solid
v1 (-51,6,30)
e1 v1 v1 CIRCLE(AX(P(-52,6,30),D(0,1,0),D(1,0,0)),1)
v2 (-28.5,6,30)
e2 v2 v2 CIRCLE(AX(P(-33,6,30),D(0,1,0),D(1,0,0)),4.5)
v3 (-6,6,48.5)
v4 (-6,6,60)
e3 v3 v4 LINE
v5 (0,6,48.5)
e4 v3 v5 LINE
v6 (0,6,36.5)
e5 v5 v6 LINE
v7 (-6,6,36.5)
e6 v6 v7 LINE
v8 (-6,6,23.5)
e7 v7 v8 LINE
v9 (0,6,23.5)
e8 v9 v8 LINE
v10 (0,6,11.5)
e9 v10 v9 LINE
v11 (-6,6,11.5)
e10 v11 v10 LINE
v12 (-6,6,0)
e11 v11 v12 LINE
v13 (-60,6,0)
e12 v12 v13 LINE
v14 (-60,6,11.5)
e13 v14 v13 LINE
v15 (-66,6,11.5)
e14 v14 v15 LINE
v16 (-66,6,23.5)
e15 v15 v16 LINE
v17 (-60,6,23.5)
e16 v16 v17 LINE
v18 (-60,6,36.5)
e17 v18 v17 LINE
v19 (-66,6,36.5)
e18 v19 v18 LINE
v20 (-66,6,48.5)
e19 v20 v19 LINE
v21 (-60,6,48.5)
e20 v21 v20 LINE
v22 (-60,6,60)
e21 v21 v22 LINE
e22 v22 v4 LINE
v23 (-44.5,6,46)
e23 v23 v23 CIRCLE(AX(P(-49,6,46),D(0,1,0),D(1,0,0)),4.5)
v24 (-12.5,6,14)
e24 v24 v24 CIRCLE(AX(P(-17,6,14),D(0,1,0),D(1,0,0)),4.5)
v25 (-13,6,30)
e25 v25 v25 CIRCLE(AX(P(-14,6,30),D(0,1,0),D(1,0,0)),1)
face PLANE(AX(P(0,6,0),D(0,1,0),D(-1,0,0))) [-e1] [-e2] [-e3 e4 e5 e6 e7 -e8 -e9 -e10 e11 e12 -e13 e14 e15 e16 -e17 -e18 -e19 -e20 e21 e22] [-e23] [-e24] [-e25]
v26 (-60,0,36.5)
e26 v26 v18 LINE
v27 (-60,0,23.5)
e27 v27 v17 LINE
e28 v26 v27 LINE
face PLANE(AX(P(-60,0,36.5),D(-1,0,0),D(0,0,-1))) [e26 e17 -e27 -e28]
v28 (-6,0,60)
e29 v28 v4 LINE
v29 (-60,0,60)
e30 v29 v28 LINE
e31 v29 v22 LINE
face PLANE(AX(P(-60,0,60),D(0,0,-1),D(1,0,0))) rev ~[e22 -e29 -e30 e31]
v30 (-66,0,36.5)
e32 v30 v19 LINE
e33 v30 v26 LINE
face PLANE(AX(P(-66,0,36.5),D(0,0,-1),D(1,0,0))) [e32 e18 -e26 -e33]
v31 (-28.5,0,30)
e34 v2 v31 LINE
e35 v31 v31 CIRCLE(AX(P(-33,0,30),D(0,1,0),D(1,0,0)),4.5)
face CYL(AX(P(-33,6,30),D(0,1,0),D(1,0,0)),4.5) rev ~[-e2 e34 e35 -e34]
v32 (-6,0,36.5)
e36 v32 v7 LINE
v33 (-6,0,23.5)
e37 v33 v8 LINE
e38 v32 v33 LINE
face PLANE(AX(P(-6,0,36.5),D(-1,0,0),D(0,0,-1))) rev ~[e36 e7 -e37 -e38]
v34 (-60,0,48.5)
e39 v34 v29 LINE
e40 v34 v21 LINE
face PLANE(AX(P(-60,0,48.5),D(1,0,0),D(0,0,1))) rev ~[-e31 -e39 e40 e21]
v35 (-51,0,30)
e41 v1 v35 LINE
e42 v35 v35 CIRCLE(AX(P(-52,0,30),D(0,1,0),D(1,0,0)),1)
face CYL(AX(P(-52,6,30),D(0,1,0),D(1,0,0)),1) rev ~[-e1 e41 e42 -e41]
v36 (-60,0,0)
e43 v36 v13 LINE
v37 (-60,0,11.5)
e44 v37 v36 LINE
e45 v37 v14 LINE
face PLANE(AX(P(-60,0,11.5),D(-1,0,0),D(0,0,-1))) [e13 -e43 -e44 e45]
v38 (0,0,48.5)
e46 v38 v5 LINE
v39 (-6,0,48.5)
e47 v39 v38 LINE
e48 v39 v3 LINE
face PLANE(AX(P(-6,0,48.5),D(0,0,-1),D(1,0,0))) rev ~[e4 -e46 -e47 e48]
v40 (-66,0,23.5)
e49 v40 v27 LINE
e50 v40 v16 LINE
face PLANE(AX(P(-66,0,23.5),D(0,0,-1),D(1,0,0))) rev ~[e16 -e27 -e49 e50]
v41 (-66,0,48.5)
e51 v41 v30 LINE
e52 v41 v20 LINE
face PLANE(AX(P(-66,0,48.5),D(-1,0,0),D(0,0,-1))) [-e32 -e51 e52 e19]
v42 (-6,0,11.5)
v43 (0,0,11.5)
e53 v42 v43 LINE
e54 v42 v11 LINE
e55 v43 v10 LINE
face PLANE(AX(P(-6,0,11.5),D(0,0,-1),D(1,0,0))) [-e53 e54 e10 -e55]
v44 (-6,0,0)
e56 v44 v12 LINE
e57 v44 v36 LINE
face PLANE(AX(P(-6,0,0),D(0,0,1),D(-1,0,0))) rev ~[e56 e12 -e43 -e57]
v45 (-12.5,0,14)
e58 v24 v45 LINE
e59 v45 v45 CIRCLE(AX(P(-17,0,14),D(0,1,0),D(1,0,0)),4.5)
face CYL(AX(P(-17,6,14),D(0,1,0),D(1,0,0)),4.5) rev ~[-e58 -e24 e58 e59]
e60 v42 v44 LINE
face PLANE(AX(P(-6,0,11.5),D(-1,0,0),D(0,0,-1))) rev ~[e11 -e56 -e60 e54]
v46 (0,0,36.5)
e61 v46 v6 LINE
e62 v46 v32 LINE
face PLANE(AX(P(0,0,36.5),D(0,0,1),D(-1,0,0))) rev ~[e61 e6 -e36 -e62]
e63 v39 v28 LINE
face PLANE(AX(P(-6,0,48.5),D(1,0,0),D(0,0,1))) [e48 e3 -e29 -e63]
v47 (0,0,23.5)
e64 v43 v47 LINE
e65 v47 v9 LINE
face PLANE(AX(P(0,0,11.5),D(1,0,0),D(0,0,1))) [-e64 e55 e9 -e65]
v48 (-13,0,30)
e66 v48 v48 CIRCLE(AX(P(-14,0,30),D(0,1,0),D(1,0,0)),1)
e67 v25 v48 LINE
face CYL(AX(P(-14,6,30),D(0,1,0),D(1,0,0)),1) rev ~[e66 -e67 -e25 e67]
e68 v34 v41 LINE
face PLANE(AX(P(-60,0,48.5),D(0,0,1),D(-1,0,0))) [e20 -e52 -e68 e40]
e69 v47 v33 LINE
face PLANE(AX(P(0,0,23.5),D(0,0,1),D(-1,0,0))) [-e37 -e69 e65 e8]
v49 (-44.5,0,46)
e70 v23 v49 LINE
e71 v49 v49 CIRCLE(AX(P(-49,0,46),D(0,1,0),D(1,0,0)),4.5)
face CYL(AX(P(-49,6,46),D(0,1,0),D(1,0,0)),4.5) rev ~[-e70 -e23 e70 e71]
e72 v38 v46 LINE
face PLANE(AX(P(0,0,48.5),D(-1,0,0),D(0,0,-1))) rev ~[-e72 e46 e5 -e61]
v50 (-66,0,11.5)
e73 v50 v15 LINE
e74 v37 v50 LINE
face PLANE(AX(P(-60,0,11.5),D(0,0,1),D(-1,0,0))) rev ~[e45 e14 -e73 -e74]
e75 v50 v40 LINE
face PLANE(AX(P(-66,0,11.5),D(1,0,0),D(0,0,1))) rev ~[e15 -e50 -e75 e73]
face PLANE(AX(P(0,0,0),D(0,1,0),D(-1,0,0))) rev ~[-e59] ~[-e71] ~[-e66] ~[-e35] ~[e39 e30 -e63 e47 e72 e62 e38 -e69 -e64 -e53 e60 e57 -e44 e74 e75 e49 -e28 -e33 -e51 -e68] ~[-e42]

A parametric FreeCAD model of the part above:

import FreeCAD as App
import Part
import Sketcher

doc = App.newDocument("Part")
body = doc.addObject("PartDesign::Body", "Body")

# Sketch on XZ plane
sketch1 = body.newObject("Sketcher::SketchObject", "Sketch")
sketch1.AttachmentSupport = (doc.getObject("XZ_Plane"), [""])
sketch1.MapMode = "FlatFace"
sketch1.addGeometry([
    Part.LineSegment(App.Vector(-60, 36, 0), App.Vector(-66, 36, 0)),  # 0
    Part.LineSegment(App.Vector(-66, 36, 0), App.Vector(-66, 48, 0)),  # 1
    Part.LineSegment(App.Vector(-66, 48, 0), App.Vector(-60, 48, 0)),  # 2
    Part.LineSegment(App.Vector(-60, 48, 0), App.Vector(-60, 60, 0)),  # 3
    Part.LineSegment(App.Vector(-60, 60, 0), App.Vector(-6, 60, 0)),  # 4
    Part.LineSegment(App.Vector(-6, 60, 0), App.Vector(-6, 48, 0)),  # 5
    Part.LineSegment(App.Vector(-6, 48, 0), App.Vector(0, 48, 0)),  # 6
    Part.LineSegment(App.Vector(0, 48, 0), App.Vector(0, 36, 0)),  # 7
    Part.LineSegment(App.Vector(0, 36, 0), App.Vector(-6, 36, 0)),  # 8
    Part.LineSegment(App.Vector(-6, 36, 0), App.Vector(-6, 24, 0)),  # 9
    Part.LineSegment(App.Vector(-6, 24, 0), App.Vector(0, 24, 0)),  # 10
    Part.LineSegment(App.Vector(0, 24, 0), App.Vector(0, 12, 0)),  # 11
    Part.LineSegment(App.Vector(0, 12, 0), App.Vector(-6, 12, 0)),  # 12
    Part.LineSegment(App.Vector(-6, 12, 0), App.Vector(-6, 0, 0)),  # 13
    Part.LineSegment(App.Vector(-6, 0, 0), App.Vector(-60, 0, 0)),  # 14
    Part.LineSegment(App.Vector(-60, 0, 0), App.Vector(-60, 12, 0)),  # 15
    Part.LineSegment(App.Vector(-60, 12, 0), App.Vector(-66, 12, 0)),  # 16
    Part.LineSegment(App.Vector(-66, 12, 0), App.Vector(-66, 24, 0)),  # 17
    Part.LineSegment(App.Vector(-66, 24, 0), App.Vector(-60, 24, 0)),  # 18
    Part.LineSegment(App.Vector(-60, 24, 0), App.Vector(-60, 36, 0)),  # 19
], False)
sketch1.addConstraint([
    Sketcher.Constraint("Coincident", 0, 2, 1, 1),
    Sketcher.Constraint("Coincident", 1, 2, 2, 1),
    Sketcher.Constraint("Coincident", 2, 2, 3, 1),
    Sketcher.Constraint("Coincident", 3, 2, 4, 1),
    Sketcher.Constraint("Coincident", 4, 2, 5, 1),
    Sketcher.Constraint("Coincident", 5, 2, 6, 1),
    Sketcher.Constraint("Coincident", 6, 2, 7, 1),
    Sketcher.Constraint("Coincident", 7, 2, 8, 1),
    Sketcher.Constraint("Coincident", 8, 2, 9, 1),
    Sketcher.Constraint("Coincident", 9, 2, 10, 1),
    Sketcher.Constraint("Coincident", 10, 2, 11, 1),
    Sketcher.Constraint("Coincident", 11, 2, 12, 1),
    Sketcher.Constraint("Coincident", 12, 2, 13, 1),
    Sketcher.Constraint("Coincident", 13, 2, 14, 1),
    Sketcher.Constraint("Coincident", 14, 2, 15, 1),
    Sketcher.Constraint("Coincident", 15, 2, 16, 1),
    Sketcher.Constraint("Coincident", 16, 2, 17, 1),
    Sketcher.Constraint("Coincident", 17, 2, 18, 1),
    Sketcher.Constraint("Coincident", 18, 2, 19, 1),
    Sketcher.Constraint("Coincident", 19, 2, 0, 1),
    Sketcher.Constraint("Horizontal", 0),
    Sketcher.Constraint("Vertical", 1),
    Sketcher.Constraint("Horizontal", 2),
    Sketcher.Constraint("Vertical", 3),
    Sketcher.Constraint("Horizontal", 4),
    Sketcher.Constraint("Vertical", 5),
    Sketcher.Constraint("Horizontal", 6),
    Sketcher.Constraint("Vertical", 7),
    Sketcher.Constraint("Horizontal", 8),
    Sketcher.Constraint("Vertical", 9),
    Sketcher.Constraint("Horizontal", 10),
    Sketcher.Constraint("Vertical", 11),
    Sketcher.Constraint("Horizontal", 12),
    Sketcher.Constraint("Vertical", 13),
    Sketcher.Constraint("Horizontal", 14),
    Sketcher.Constraint("Vertical", 15),
    Sketcher.Constraint("Horizontal", 16),
    Sketcher.Constraint("Vertical", 17),
    Sketcher.Constraint("Horizontal", 18),
    Sketcher.Constraint("Vertical", 19),
    Sketcher.Constraint("PointOnObject", 6, 2, -2),
    Sketcher.Constraint("PointOnObject", 10, 2, -2),
    Sketcher.Constraint("PointOnObject", 13, 2, -1),
    Sketcher.Constraint("Horizontal", 2, 2, 5, 2),
    Sketcher.Constraint("Horizontal", 0, 2, 7, 2),
    Sketcher.Constraint("Horizontal", 12, 2, 15, 2),
    Sketcher.Constraint("Horizontal", 10, 2, 17, 2),
    Sketcher.Constraint("Vertical", 5, 2, 8, 2),
    Sketcher.Constraint("Vertical", 9, 2, 12, 2),
    Sketcher.Constraint("Vertical", 3, 2, 14, 2),
    Sketcher.Constraint("Vertical", 1, 2, 16, 2),
    Sketcher.Constraint("Vertical", 15, 2, 18, 2),
    Sketcher.Constraint("Equal", 2, 6),
    Sketcher.Constraint("Equal", 7, 11),
    Sketcher.Constraint("Equal", 5, 13),
    Sketcher.Constraint("DistanceX", 0, 2, 0, 1, 6.0),
    Sketcher.Constraint("DistanceY", 1, 1, 1, 2, 12.0),
    Sketcher.Constraint("DistanceY", 3, 1, 3, 2, 11.5),
    Sketcher.Constraint("DistanceX", 4, 1, 4, 2, 54.0),
    Sketcher.Constraint("DistanceY", 9, 2, 9, 1, 13.0),
])
pad1 = body.newObject("PartDesign::Pad", "Pad")
pad1.Profile = sketch1
pad1.Length = 6
pad1.Reversed = True

# Sketch on XZ plane
sketch2 = body.newObject("Sketcher::SketchObject", "Sketch001")
sketch2.AttachmentSupport = (doc.getObject("XZ_Plane"), [""])
sketch2.MapMode = "FlatFace"
sketch2.AttachmentOffset = App.Placement(App.Vector(0, 0, -6), App.Rotation())
sketch2.addGeometry([
    Part.Circle(App.Vector(-49, 46, 0), App.Vector(0, 0, 1), 4.5),  # 0
    Part.Circle(App.Vector(-17, 14, 0), App.Vector(0, 0, 1), 4.5),  # 1
    Part.Circle(App.Vector(-33, 30, 0), App.Vector(0, 0, 1), 4.5),  # 2
    Part.Circle(App.Vector(-14, 30, 0), App.Vector(0, 0, 1), 1),  # 3
    Part.Circle(App.Vector(-52, 30, 0), App.Vector(0, 0, 1), 1),  # 4
], False)
sketch2.addConstraint([
    Sketcher.Constraint("Equal", 0, 1),
    Sketcher.Constraint("Equal", 1, 2),
    Sketcher.Constraint("Equal", 3, 4),
    Sketcher.Constraint("Horizontal", 2, 3, 3, 3),
    Sketcher.Constraint("Horizontal", 3, 3, 4, 3),
    Sketcher.Constraint("Diameter", 0, 9.0),
    Sketcher.Constraint("Diameter", 3, 2.0),
    Sketcher.Constraint("DistanceX", 0, 3, 2, 3, 16.0),
    Sketcher.Constraint("DistanceY", 2, 3, 0, 3, 16.0),
    Sketcher.Constraint("DistanceX", 2, 3, 1, 3, 16.0),
    Sketcher.Constraint("DistanceY", 1, 3, 2, 3, 16.0),
    Sketcher.Constraint("DistanceX", 2, 3, 3, 3, 19.0),
    Sketcher.Constraint("DistanceX", 4, 3, 2, 3, 19.0),
    Sketcher.Constraint("DistanceX", 0, 3, -1, 1, 49.0),
    Sketcher.Constraint("DistanceY", -1, 1, 0, 3, 46.0),
])
pocket1 = body.newObject("PartDesign::Pocket", "Pocket")
pocket1.Profile = sketch2
pocket1.Type = "ThroughAll"
pocket1.Reversed = True

doc.recompute()
